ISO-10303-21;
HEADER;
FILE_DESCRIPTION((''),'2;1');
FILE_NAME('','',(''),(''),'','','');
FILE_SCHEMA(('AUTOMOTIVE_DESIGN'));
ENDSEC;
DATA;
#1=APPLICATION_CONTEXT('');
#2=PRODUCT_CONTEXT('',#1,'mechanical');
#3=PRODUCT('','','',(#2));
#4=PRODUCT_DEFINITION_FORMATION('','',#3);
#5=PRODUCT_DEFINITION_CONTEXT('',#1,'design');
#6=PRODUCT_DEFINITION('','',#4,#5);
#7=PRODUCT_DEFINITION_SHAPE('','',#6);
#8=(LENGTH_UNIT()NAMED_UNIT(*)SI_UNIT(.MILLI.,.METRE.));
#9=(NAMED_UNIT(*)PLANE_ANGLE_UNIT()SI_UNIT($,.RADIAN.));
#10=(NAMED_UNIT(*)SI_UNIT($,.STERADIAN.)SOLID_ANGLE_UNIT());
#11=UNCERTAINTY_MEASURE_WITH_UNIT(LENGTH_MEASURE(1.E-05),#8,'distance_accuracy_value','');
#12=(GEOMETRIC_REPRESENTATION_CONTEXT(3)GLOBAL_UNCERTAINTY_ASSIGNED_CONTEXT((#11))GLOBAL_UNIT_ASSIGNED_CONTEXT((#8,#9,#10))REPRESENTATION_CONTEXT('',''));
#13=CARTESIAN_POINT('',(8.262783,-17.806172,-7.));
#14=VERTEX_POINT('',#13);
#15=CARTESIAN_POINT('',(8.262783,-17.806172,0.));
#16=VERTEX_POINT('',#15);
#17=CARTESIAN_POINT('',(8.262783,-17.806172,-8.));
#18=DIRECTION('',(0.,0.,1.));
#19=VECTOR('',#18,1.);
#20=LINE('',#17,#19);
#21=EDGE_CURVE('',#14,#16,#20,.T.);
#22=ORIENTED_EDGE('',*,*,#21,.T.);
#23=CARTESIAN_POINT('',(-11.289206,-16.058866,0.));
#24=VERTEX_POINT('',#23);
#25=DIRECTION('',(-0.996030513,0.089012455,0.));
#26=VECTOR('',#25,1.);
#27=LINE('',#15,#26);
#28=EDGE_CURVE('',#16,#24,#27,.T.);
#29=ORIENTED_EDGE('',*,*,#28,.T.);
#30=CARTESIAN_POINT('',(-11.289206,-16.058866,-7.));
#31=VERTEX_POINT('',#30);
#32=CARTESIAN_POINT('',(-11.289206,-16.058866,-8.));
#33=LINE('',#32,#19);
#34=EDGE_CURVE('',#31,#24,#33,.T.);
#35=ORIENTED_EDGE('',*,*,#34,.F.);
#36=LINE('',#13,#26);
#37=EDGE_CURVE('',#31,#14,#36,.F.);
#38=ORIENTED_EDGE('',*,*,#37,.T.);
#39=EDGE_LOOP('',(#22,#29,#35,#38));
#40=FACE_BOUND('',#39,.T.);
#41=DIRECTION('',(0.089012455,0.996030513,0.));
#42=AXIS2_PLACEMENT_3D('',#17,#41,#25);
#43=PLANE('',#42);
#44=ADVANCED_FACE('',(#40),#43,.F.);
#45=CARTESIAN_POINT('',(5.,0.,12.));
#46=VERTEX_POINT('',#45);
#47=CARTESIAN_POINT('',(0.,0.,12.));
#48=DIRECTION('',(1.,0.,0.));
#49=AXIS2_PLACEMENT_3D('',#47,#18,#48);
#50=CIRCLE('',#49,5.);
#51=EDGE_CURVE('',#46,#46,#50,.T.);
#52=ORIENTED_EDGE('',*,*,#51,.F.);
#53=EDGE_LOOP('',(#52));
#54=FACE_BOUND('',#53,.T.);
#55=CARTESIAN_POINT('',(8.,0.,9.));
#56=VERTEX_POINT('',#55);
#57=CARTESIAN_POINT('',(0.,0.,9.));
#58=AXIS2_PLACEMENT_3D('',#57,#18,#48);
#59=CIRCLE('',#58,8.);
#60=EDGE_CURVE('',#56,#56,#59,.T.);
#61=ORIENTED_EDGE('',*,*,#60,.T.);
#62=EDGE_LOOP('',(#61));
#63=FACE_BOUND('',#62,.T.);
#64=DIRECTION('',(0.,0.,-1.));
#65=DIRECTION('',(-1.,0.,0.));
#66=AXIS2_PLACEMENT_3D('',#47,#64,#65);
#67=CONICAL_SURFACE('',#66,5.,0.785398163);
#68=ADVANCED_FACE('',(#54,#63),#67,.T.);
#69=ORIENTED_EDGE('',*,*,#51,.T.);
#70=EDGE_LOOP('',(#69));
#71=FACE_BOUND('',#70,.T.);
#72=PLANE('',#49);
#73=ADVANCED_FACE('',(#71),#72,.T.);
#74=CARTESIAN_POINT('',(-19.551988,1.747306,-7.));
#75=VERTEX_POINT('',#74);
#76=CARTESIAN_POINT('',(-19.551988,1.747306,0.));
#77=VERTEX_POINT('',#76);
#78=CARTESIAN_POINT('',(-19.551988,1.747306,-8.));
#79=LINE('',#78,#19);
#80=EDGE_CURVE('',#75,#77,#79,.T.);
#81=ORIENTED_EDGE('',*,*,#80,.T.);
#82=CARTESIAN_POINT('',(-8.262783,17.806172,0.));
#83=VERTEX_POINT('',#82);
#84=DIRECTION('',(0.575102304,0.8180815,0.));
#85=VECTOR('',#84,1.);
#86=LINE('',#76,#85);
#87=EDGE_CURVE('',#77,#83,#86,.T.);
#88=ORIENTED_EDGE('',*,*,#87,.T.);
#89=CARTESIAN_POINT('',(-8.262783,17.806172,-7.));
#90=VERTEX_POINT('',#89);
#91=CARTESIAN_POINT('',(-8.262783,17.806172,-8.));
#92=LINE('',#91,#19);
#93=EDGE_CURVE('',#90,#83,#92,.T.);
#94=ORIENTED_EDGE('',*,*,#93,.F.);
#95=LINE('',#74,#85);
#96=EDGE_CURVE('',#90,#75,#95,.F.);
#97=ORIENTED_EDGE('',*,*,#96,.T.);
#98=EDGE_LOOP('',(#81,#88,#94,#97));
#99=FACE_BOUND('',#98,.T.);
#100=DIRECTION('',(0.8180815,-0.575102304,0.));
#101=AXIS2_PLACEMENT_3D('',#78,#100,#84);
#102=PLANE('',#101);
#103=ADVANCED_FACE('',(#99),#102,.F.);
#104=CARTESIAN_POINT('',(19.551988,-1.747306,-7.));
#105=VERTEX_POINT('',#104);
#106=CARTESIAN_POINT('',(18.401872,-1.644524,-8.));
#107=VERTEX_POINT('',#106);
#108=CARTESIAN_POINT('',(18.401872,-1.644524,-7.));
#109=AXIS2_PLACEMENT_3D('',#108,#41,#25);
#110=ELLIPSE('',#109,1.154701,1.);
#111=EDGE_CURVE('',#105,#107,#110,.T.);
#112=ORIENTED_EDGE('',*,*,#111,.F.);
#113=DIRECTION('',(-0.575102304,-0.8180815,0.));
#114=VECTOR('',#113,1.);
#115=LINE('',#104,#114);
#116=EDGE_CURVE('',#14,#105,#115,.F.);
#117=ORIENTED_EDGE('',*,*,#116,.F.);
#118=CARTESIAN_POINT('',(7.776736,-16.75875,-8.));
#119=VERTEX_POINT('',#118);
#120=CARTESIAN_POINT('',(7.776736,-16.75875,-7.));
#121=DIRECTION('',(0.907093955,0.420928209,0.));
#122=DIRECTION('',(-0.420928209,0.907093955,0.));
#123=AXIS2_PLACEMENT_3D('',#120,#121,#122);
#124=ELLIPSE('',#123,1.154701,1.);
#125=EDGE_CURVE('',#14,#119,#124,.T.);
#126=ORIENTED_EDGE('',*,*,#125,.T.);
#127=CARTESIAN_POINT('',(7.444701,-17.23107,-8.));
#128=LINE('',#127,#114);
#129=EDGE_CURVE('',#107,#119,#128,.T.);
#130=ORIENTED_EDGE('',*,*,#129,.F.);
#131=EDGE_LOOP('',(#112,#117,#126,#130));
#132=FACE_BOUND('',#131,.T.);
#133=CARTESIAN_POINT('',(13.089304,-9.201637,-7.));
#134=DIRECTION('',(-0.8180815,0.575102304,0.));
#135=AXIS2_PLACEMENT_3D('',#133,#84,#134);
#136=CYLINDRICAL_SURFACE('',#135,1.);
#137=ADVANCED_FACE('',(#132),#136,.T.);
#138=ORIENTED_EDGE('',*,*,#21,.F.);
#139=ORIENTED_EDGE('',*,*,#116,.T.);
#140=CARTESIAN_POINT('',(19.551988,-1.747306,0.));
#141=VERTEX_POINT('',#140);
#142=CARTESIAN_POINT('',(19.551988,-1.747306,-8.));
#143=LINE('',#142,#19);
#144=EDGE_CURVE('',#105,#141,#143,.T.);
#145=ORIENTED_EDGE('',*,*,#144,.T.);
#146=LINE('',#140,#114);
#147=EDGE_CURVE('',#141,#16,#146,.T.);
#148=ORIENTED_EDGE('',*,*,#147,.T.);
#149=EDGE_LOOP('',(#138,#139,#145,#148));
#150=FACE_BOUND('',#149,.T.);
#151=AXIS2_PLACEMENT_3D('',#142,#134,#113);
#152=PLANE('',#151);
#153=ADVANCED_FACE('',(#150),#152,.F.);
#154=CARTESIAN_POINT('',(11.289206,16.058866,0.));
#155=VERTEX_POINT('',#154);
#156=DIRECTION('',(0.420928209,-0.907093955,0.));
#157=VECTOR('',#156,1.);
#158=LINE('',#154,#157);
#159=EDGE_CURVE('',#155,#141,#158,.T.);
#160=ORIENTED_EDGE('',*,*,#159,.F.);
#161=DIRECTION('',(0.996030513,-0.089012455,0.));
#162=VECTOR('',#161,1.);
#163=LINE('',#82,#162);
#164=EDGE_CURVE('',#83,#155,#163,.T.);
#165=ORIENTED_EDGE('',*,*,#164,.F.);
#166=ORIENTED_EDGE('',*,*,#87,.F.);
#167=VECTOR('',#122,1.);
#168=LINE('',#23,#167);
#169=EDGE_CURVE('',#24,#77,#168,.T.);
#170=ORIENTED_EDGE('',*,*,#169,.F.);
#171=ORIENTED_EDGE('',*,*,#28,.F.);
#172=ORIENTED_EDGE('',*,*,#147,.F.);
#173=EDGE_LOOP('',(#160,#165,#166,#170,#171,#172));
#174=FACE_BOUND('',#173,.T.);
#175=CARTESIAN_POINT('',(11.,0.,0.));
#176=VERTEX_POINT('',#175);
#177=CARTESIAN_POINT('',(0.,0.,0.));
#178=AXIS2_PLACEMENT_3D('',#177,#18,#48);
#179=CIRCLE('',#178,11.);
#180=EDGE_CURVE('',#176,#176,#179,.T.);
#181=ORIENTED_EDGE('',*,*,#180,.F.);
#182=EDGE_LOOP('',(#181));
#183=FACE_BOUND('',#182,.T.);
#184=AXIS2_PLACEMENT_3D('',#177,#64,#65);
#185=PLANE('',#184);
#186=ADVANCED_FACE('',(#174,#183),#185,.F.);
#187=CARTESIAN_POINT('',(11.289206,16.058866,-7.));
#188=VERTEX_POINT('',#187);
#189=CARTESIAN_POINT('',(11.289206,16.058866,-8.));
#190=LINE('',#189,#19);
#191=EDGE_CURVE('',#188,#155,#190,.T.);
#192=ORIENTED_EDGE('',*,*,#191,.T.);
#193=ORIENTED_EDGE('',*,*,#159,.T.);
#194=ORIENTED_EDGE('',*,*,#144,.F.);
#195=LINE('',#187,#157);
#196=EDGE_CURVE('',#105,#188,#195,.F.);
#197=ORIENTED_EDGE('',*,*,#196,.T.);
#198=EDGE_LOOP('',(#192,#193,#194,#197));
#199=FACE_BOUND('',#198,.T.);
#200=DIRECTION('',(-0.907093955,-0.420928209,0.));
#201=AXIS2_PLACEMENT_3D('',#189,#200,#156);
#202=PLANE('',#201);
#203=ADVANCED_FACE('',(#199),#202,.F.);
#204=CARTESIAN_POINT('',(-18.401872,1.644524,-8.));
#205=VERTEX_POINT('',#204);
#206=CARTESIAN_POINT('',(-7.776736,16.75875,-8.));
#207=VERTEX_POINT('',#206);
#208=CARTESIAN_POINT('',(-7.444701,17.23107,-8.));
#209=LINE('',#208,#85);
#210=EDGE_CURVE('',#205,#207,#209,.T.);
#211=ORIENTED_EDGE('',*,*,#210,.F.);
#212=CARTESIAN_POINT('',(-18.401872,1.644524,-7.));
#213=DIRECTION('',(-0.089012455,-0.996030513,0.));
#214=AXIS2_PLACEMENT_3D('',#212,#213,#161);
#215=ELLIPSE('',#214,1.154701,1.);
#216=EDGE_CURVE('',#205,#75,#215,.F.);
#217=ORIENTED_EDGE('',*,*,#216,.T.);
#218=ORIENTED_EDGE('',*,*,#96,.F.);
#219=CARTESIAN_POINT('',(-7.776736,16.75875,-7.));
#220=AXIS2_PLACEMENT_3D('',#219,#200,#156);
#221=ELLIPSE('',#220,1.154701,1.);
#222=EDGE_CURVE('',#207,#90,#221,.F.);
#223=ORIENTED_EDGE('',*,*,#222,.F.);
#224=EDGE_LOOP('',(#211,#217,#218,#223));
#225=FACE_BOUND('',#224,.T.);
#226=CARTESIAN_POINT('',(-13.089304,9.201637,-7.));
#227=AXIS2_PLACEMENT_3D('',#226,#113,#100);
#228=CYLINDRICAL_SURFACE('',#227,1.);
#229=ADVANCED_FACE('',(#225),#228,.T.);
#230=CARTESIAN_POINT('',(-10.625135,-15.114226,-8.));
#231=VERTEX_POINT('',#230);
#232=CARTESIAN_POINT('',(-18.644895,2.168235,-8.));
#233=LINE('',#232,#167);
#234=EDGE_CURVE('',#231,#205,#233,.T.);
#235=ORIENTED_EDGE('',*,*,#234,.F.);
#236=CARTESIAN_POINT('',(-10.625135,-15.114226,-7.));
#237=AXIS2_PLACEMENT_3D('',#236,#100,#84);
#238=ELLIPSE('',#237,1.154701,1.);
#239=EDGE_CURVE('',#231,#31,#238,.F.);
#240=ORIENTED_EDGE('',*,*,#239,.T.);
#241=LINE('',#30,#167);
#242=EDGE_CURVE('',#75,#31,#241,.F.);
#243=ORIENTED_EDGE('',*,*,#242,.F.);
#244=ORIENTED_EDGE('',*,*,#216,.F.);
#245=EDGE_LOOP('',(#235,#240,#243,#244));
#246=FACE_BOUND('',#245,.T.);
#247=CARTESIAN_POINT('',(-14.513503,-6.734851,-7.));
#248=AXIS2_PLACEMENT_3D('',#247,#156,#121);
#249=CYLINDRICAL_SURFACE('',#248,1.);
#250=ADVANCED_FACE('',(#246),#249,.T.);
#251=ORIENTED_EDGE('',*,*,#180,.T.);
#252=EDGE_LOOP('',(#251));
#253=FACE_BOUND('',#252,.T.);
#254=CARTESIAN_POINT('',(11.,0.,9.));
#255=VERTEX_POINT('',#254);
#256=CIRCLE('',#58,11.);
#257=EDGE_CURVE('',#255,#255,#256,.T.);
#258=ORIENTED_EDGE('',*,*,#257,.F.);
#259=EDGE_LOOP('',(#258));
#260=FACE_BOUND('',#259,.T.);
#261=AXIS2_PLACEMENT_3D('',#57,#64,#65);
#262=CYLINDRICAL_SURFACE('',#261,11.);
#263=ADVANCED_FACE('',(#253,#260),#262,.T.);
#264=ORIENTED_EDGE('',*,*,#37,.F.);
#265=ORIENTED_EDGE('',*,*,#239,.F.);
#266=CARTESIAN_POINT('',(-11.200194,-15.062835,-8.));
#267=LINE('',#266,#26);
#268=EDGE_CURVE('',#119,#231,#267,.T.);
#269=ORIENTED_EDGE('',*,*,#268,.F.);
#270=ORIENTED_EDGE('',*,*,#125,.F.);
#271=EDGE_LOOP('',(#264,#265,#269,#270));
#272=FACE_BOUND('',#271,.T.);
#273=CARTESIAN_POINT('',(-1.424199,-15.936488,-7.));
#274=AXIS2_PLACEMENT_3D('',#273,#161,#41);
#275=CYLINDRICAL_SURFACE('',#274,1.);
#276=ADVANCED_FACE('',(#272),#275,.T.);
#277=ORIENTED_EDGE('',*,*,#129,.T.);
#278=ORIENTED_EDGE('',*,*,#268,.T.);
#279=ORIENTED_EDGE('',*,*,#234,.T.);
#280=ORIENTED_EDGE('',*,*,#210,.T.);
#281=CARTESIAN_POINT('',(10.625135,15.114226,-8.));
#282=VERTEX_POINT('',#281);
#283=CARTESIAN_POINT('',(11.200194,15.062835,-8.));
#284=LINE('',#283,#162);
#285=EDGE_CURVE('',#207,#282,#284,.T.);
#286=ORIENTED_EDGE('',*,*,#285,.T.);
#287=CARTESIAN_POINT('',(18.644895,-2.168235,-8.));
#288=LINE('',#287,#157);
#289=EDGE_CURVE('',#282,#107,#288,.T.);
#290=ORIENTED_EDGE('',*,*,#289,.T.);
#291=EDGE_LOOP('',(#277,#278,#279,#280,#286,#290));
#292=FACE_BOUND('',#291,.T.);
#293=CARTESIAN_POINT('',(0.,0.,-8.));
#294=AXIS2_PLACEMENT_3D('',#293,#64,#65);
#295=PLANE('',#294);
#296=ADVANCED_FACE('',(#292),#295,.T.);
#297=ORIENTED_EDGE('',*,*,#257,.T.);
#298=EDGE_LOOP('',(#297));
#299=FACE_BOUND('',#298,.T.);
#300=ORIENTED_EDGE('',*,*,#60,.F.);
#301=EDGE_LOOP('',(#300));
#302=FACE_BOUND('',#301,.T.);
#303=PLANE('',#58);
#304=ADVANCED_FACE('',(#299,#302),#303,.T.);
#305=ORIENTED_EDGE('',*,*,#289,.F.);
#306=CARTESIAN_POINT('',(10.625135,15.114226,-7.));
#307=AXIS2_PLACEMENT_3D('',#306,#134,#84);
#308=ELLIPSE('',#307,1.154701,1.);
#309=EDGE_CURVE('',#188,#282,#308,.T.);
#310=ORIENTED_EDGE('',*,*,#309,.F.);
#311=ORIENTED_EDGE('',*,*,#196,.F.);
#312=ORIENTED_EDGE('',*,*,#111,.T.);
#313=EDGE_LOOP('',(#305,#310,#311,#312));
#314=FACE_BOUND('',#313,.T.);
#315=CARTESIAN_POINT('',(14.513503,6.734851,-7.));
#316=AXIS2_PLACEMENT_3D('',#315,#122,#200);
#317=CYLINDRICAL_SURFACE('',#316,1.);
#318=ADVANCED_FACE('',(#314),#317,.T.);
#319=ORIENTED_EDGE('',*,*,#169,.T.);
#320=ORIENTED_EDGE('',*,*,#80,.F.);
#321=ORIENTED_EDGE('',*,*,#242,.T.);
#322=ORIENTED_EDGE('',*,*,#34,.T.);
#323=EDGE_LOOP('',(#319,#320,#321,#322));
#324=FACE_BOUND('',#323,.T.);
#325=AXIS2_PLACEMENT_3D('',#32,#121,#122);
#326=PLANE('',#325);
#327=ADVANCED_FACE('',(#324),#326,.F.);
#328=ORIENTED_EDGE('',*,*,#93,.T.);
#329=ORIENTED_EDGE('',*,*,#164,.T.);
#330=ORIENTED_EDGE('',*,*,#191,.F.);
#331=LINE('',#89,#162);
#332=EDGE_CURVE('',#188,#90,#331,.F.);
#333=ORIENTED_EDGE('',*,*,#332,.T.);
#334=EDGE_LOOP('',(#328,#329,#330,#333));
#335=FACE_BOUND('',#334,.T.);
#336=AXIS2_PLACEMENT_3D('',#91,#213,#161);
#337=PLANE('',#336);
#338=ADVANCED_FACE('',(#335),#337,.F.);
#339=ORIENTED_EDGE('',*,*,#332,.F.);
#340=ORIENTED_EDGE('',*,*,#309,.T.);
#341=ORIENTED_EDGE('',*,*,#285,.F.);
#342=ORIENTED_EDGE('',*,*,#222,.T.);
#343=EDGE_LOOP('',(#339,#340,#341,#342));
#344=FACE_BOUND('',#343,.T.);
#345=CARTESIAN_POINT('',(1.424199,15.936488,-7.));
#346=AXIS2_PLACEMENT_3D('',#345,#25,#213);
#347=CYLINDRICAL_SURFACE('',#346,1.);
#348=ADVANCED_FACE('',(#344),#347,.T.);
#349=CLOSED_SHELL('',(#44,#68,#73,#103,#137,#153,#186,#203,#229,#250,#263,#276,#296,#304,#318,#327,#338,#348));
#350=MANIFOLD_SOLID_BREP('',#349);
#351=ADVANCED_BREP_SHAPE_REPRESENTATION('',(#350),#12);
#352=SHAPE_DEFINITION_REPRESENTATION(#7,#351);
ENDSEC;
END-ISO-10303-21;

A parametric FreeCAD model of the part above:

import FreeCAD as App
import Part
import Sketcher
from FreeCAD import Vector


def edges_at(feature, points):
    """Names of the edges that pass closest to the given points."""
    edges = feature.Shape.Edges
    near = lambda p: min(range(len(edges)), key=lambda i: edges[i].distToShape(Part.Vertex(*p))[0])
    return sorted({f"Edge{near(p) + 1}" for p in points})


def add_polygon(sketch, points):
    """Adds a closed chain of lines whose ends are joined by coincident constraints."""
    first, n = sketch.GeometryCount, len(points)
    for a, b in zip(points, points[1:] + points[:1]):
        sketch.addGeometry(Part.LineSegment(App.Vector(*a, 0), App.Vector(*b, 0)), False)
    for i in range(n):
        sketch.addConstraint(Sketcher.Constraint("Coincident", first + i, 2, first + (i + 1) % n, 1))

doc = App.newDocument("Part")
body = doc.addObject("PartDesign::Body", "Body")

sketch1 = doc.addObject("Sketcher::SketchObject", "Sketch")
body.addObject(sketch1)
sketch1.AttachmentSupport = (doc.XY_Plane, [""])
sketch1.MapMode = "FlatFace"
sketch1.addGeometry(Part.Circle(Vector(0, 0, 0), Vector(0, 0, 1), 11), False)
sketch1.addConstraint([
    Sketcher.Constraint("Coincident", 0, 3, -1, 1),
    Sketcher.Constraint("Diameter", 0, 22.0),
])
pad1 = doc.addObject("PartDesign::Pad", "Pad")
body.addObject(pad1)
pad1.Profile = sketch1
pad1.Length = 9

sketch2 = doc.addObject("Sketcher::SketchObject", "Sketch001")
body.addObject(sketch2)
sketch2.AttachmentSupport = (doc.XY_Plane, [""])
sketch2.MapMode = "FlatFace"
add_polygon(sketch2, [(20, -2), (8, -18), (-11, -16), (-20, 2), (-8, 18), (11, 16)])
sketch2.addConstraint([
    Sketcher.Constraint("Symmetric", 0, 2, 3, 2, -1, 1),
    Sketcher.Constraint("Symmetric", 1, 2, 4, 2, -1, 1),
    Sketcher.Constraint("Symmetric", 2, 2, 5, 2, -1, 1),
    Sketcher.Constraint("Equal", 0, 1),
    Sketcher.Constraint("Equal", 1, 2),
    Sketcher.Constraint("Distance", 0, 19.629909),
    Sketcher.Constraint("DistanceY", 0, 2, -1, 1, 17.806172),
    Sketcher.Constraint("DistanceX", 2, 2, -1, 1, 19.551988),
    Sketcher.Constraint("DistanceX", 1, 2, 0, 2, 19.551988),
])
pad2 = doc.addObject("PartDesign::Pad", "Pad001")
body.addObject(pad2)
pad2.Profile = sketch2
pad2.Length = 8
pad2.Reversed = True
doc.recompute()

fillet = doc.addObject("PartDesign::Fillet", "Fillet")
body.addObject(fillet)
fillet.Base = (pad2, edges_at(pad2, [
    (1.513, 16.933, -8),
    (15.421, 7.156, -8),
    (13.907, -9.777, -8),
    (-1.513, -16.933, -8),
    (-15.421, -7.156, -8),
    (-13.907, 9.777, -8),
]))
fillet.Radius = 1

sketch3 = doc.addObject("Sketcher::SketchObject", "Sketch002")
body.addObject(sketch3)
sketch3.AttachmentSupport = (doc.XY_Plane, [""])
sketch3.MapMode = "FlatFace"
sketch3.AttachmentOffset = App.Placement(Vector(0, 0, 9), App.Rotation())
sketch3.addGeometry(Part.Circle(Vector(0, 0, 0), Vector(0, 0, 1), 8), False)
sketch3.addConstraint([
    Sketcher.Constraint("Coincident", 0, 3, -1, 1),
    Sketcher.Constraint("Diameter", 0, 16.0),
])

sketch4 = doc.addObject("Sketcher::SketchObject", "Sketch003")
body.addObject(sketch4)
sketch4.AttachmentSupport = (doc.XY_Plane, [""])
sketch4.MapMode = "FlatFace"
sketch4.AttachmentOffset = App.Placement(Vector(0, 0, 12), App.Rotation())
sketch4.addGeometry(Part.Circle(Vector(0, 0, 0), Vector(0, 0, 1), 5), False)
sketch4.addConstraint([
    Sketcher.Constraint("Coincident", 0, 3, -1, 1),
    Sketcher.Constraint("Diameter", 0, 10.0),
])

additiveloft = doc.addObject("PartDesign::AdditiveLoft", "AdditiveLoft")
body.addObject(additiveloft)
additiveloft.Profile = sketch3
additiveloft.Sections = [sketch4]

doc.recompute()
